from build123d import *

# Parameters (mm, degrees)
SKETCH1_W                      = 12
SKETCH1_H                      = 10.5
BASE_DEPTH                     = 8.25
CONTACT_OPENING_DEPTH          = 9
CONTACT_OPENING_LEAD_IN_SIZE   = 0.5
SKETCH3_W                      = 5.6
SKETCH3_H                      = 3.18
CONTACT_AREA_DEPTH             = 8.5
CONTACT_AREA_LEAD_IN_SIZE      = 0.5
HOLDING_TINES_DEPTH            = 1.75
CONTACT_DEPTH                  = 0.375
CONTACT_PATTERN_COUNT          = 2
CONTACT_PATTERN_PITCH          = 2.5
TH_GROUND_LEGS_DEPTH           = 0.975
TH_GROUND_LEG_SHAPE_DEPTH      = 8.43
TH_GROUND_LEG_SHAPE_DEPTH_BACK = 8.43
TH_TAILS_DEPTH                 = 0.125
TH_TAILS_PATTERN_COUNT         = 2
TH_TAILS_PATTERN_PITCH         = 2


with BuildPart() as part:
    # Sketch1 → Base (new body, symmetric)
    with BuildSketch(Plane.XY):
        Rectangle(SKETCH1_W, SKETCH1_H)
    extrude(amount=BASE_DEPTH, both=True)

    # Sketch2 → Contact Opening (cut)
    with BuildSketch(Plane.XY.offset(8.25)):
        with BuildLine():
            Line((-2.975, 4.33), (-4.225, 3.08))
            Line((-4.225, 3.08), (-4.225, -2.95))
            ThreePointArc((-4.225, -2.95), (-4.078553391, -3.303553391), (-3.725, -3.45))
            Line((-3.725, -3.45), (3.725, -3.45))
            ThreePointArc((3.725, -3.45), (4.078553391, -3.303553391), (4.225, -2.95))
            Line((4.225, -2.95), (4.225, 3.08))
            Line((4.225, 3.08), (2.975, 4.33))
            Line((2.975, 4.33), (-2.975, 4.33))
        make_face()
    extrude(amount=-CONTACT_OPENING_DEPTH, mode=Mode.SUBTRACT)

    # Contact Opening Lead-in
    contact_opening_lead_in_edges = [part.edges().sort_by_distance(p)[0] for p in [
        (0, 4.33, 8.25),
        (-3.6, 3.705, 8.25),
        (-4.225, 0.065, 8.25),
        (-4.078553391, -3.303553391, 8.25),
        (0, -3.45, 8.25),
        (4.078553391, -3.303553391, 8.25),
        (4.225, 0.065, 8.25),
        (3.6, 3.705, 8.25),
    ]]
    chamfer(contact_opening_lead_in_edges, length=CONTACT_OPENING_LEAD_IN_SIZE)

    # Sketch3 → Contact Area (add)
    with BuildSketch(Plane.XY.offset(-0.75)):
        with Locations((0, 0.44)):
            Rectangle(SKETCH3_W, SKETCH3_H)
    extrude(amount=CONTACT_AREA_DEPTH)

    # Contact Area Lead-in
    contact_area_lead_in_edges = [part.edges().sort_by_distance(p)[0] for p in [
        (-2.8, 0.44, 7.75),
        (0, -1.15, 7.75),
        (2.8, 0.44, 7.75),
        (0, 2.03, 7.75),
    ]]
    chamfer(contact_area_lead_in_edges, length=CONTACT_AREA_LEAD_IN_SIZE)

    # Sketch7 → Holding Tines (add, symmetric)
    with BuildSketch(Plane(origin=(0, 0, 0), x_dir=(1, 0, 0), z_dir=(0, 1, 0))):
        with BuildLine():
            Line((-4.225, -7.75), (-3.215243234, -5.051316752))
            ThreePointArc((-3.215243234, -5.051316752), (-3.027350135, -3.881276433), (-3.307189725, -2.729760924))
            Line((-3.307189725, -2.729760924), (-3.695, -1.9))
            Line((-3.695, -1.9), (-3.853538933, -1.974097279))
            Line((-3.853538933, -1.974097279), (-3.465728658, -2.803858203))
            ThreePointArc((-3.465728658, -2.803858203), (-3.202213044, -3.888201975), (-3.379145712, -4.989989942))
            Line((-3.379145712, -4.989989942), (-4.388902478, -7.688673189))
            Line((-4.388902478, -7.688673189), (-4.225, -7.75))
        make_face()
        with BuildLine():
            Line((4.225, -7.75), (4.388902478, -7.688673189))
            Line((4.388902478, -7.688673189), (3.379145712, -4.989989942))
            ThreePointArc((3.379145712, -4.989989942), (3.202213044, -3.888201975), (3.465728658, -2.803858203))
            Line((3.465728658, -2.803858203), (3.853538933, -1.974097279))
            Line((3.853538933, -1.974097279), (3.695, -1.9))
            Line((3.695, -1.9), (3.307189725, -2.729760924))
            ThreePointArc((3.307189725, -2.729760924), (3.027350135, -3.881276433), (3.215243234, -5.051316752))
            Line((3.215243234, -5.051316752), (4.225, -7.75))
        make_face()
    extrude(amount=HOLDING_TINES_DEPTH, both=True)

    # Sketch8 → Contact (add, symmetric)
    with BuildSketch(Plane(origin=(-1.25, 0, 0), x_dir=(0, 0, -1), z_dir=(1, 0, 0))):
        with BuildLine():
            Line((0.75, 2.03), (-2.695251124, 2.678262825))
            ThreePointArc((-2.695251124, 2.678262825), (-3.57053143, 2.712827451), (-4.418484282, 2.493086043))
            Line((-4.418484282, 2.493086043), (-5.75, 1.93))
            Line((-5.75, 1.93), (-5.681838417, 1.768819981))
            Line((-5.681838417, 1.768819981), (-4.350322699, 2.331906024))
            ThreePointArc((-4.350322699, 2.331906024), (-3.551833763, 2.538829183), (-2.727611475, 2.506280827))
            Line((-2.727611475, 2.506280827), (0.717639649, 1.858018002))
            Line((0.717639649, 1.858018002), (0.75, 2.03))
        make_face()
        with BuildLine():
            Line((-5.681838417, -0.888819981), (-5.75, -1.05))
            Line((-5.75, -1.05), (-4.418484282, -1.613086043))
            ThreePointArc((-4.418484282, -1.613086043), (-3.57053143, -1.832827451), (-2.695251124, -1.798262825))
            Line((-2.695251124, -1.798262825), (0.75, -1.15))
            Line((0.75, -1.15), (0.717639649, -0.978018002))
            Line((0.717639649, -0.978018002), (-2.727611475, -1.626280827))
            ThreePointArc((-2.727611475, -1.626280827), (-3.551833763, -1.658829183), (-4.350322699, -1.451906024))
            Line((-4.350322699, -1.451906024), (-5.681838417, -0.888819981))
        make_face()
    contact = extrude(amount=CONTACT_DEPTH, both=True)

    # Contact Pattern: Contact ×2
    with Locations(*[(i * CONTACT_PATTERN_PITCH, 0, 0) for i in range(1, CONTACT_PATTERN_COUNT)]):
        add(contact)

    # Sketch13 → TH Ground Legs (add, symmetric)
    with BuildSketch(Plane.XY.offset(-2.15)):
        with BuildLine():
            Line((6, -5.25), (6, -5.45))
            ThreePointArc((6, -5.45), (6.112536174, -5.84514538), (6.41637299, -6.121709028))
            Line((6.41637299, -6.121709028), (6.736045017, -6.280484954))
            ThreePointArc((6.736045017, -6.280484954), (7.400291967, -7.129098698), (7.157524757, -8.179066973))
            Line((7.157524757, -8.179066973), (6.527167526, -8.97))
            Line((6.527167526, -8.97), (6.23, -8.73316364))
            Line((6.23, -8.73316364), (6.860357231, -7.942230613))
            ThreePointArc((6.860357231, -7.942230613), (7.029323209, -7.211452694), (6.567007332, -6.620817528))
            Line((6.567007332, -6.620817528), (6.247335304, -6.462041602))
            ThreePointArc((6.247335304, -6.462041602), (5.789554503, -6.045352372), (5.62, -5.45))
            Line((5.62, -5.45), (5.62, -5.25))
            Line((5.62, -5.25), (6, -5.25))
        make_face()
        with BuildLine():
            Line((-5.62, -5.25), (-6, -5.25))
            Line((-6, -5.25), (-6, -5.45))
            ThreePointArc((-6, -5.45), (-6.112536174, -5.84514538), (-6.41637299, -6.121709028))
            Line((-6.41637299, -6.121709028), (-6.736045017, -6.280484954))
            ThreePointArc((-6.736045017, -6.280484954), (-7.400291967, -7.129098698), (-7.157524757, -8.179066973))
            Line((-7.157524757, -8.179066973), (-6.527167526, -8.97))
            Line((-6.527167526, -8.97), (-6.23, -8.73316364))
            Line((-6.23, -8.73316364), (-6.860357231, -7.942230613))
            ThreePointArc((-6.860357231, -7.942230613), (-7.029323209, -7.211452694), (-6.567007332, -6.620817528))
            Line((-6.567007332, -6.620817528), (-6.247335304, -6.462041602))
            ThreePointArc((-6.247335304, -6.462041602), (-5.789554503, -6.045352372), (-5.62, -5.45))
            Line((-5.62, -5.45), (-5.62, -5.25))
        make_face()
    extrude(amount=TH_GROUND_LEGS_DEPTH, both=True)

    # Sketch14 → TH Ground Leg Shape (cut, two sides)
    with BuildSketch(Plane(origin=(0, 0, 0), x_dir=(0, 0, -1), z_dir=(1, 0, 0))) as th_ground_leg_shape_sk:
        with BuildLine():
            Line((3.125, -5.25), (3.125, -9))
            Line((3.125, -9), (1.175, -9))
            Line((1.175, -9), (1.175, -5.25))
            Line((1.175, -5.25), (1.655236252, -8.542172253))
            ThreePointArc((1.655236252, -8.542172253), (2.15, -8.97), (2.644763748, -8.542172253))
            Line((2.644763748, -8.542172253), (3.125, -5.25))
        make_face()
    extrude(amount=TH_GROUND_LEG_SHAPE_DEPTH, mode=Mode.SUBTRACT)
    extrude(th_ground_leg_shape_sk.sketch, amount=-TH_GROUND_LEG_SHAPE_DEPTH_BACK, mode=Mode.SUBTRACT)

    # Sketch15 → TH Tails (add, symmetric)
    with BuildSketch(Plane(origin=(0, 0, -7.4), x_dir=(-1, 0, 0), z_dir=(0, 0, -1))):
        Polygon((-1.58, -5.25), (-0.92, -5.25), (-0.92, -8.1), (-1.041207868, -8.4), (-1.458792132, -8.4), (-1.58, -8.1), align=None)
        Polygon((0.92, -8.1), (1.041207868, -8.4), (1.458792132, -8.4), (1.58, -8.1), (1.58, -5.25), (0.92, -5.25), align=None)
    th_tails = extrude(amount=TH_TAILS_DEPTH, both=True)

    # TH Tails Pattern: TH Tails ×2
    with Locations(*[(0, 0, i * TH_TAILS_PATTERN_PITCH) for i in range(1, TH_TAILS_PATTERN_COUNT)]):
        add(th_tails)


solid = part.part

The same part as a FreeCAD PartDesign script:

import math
import FreeCAD as App
import Part
import Sketcher

V = App.Vector
Q = App.Units.Quantity


def edges_at(feature, points):
    """Names of the edges that pass closest to the given points."""
    edges = feature.Shape.Edges
    near = lambda p: min(range(len(edges)), key=lambda i: edges[i].distToShape(Part.Vertex(*p))[0])
    return sorted({f"Edge{near(p) + 1}" for p in points})


def add_polygon(sketch, points):
    """Adds a closed chain of lines whose ends are joined by coincident constraints."""
    first, n = sketch.GeometryCount, len(points)
    for a, b in zip(points, points[1:] + points[:1]):
        sketch.addGeometry(Part.LineSegment(App.Vector(*a, 0), App.Vector(*b, 0)), False)
    for i in range(n):
        sketch.addConstraint(Sketcher.Constraint("Coincident", first + i, 2, first + (i + 1) % n, 1))

doc = App.newDocument("Part")
body = doc.addObject("PartDesign::Body", "Body")

# Sketch on XY plane
sketch1 = body.newObject("Sketcher::SketchObject", "Sketch")
sketch1.AttachmentSupport = (doc.getObject("XY_Plane"), [""])
sketch1.MapMode = "FlatFace"
add_polygon(sketch1, [(-6, 5.25), (-6, -5.25), (6, -5.25), (6, 5.25)])  # lines 0-3
sketch1.addConstraint([
    Sketcher.Constraint("Vertical", 0),
    Sketcher.Constraint("Horizontal", 1),
    Sketcher.Constraint("Vertical", 2),
    Sketcher.Constraint("Horizontal", 3),
    Sketcher.Constraint("Symmetric", 0, 2, 2, 2, -1, 1),
    Sketcher.Constraint("DistanceX", 1, 1, 1, 2, 12.0),
    Sketcher.Constraint("DistanceY", 0, 2, 0, 1, 10.5),
])
pad1 = body.newObject("PartDesign::Pad", "Pad")
pad1.Profile = sketch1
pad1.Length = 16.5
pad1.Midplane = True

# Sketch on XY plane
sketch2 = body.newObject("Sketcher::SketchObject", "Sketch001")
sketch2.AttachmentSupport = (doc.getObject("XY_Plane"), [""])
sketch2.MapMode = "FlatFace"
sketch2.AttachmentOffset = App.Placement(V(0, 0, 8.25), App.Rotation())
sketch2.addGeometry([
    Part.LineSegment(V(-2.975, 4.33, 0), V(-4.225, 3.08, 0)),  # 0
    Part.LineSegment(V(-4.225, 3.08, 0), V(-4.225, -2.95, 0)),  # 1
    Part.ArcOfCircle(Part.Circle(V(-3.725, -2.95, 0), V(0, 0, 1), 0.5), math.radians(180), math.radians(270)),  # 2
    Part.LineSegment(V(-3.725, -3.45, 0), V(3.725, -3.45, 0)),  # 3
    Part.ArcOfCircle(Part.Circle(V(3.725, -2.95, 0), V(0, 0, 1), 0.5), math.radians(-90), math.radians(0)),  # 4
    Part.LineSegment(V(4.225, -2.95, 0), V(4.225, 3.08, 0)),  # 5
    Part.LineSegment(V(4.225, 3.08, 0), V(2.975, 4.33, 0)),  # 6
    Part.LineSegment(V(2.975, 4.33, 0), V(-2.975, 4.33, 0)),  # 7
], False)
sketch2.addConstraint([
    Sketcher.Constraint("Coincident", 0, 2, 1, 1),
    Sketcher.Constraint("Tangent", 1, 2, 2, 1),
    Sketcher.Constraint("Tangent", 2, 2, 3, 1),
    Sketcher.Constraint("Tangent", 3, 2, 4, 1),
    Sketcher.Constraint("Tangent", 4, 2, 5, 1),
    Sketcher.Constraint("Coincident", 5, 2, 6, 1),
    Sketcher.Constraint("Coincident", 6, 2, 7, 1),
    Sketcher.Constraint("Coincident", 7, 2, 0, 1),
    Sketcher.Constraint("Vertical", 1),
    Sketcher.Constraint("Horizontal", 3),
    Sketcher.Constraint("Vertical", 5),
    Sketcher.Constraint("Horizontal", 7),
    Sketcher.Constraint("Equal", 2, 4),
    Sketcher.Constraint("Symmetric", 0, 2, 5, 2, -2),
    Sketcher.Constraint("Perpendicular", 0, 6),
    Sketcher.Constraint("Equal", 0, 6),
    Sketcher.Constraint("Radius", 2, 0.5),
    Sketcher.Constraint("DistanceX", 3, 1, 3, 2, 7.45),
    Sketcher.Constraint("DistanceX", 7, 2, 7, 1, 5.95),
    Sketcher.Constraint("DistanceY", 1, 2, 1, 1, 6.03),
    Sketcher.Constraint("DistanceY", 2, 3, -1, 1, 2.95),
])
pocket1 = body.newObject("PartDesign::Pocket", "Pocket")
pocket1.Profile = sketch2
pocket1.Length = 9
doc.recompute()

chamfer = body.newObject("PartDesign::Chamfer", "Chamfer")
chamfer.Base = (pocket1, edges_at(pocket1, [
    (0, 4.33, 8.25),
    (-3.6, 3.705, 8.25),
    (-4.225, 0.065, 8.25),
    (-4.079, -3.304, 8.25),
    (0, -3.45, 8.25),
    (4.079, -3.304, 8.25),
    (4.225, 0.065, 8.25),
    (3.6, 3.705, 8.25),
]))
chamfer.Size = 0.5

# Sketch on XY plane
sketch3 = body.newObject("Sketcher::SketchObject", "Sketch002")
sketch3.AttachmentSupport = (doc.getObject("XY_Plane"), [""])
sketch3.MapMode = "FlatFace"
sketch3.AttachmentOffset = App.Placement(V(0, 0, -0.75), App.Rotation())
add_polygon(sketch3, [(-2.8, 2.03), (-2.8, -1.15), (2.8, -1.15), (2.8, 2.03)])  # lines 0-3
sketch3.addConstraint([
    Sketcher.Constraint("Vertical", 0),
    Sketcher.Constraint("Horizontal", 1),
    Sketcher.Constraint("Vertical", 2),
    Sketcher.Constraint("Horizontal", 3),
    Sketcher.Constraint("DistanceX", 1, 1, 1, 2, 5.6),
    Sketcher.Constraint("DistanceY", 0, 2, 0, 1, 3.18),
    Sketcher.Constraint("DistanceX", 0, 2, -1, 1, 2.8),
    Sketcher.Constraint("DistanceY", 0, 2, -1, 1, 1.15),
])
pad2 = body.newObject("PartDesign::Pad", "Pad001")
pad2.Profile = sketch3
pad2.Length = 8.5
doc.recompute()

chamfer2 = body.newObject("PartDesign::Chamfer", "Chamfer001")
chamfer2.Base = (pad2, edges_at(pad2, [
    (-2.8, 0.44, 7.75),
    (0, -1.15, 7.75),
    (2.8, 0.44, 7.75),
    (0, 2.03, 7.75),
]))
chamfer2.Size = 0.5

# Sketch on XZ plane
sketch4 = body.newObject("Sketcher::SketchObject", "Sketch003")
sketch4.AttachmentSupport = (doc.getObject("XZ_Plane"), [""])
sketch4.MapMode = "FlatFace"
sketch4.addGeometry([
    Part.LineSegment(V(-4.225, 7.75, 0), V(-3.215243, 5.051317, 0)),  # 0
    Part.ArcOfCircle(Part.Circle(V(-6.025, 4, 0), V(0, 0, 1), 3), math.radians(-25.050254), math.radians(20.514164)),  # 1
    Part.LineSegment(V(-3.30719, 2.729761, 0), V(-3.695, 1.9, 0)),  # 2
    Part.LineSegment(V(-3.695, 1.9, 0), V(-3.853539, 1.974097, 0)),  # 3
    Part.LineSegment(V(-3.853539, 1.974097, 0), V(-3.465729, 2.803858, 0)),  # 4
    Part.ArcOfCircle(Part.Circle(V(-6.025, 4, 0), V(0, 0, 1), 2.825), math.radians(-25.050254), math.radians(20.514164)),  # 5
    Part.LineSegment(V(-3.379146, 4.98999, 0), V(-4.388902, 7.688673, 0)),  # 6
    Part.LineSegment(V(-4.388902, 7.688673, 0), V(-4.225, 7.75, 0)),  # 7
    Part.LineSegment(V(4.225, 7.75, 0), V(4.388902, 7.688673, 0)),  # 8
    Part.LineSegment(V(4.388902, 7.688673, 0), V(3.379146, 4.98999, 0)),  # 9
    Part.ArcOfCircle(Part.Circle(V(6.025, 4, 0), V(0, 0, 1), 2.825), math.radians(159.485836), math.radians(205.050254)),  # 10
    Part.LineSegment(V(3.465729, 2.803858, 0), V(3.853539, 1.974097, 0)),  # 11
    Part.LineSegment(V(3.853539, 1.974097, 0), V(3.695, 1.9, 0)),  # 12
    Part.LineSegment(V(3.695, 1.9, 0), V(3.30719, 2.729761, 0)),  # 13
    Part.ArcOfCircle(Part.Circle(V(6.025, 4, 0), V(0, 0, 1), 3), math.radians(159.485836), math.radians(205.050254)),  # 14
    Part.LineSegment(V(3.215243, 5.051317, 0), V(4.225, 7.75, 0)),  # 15
], False)
sketch4.addConstraint([
    Sketcher.Constraint("Tangent", 0, 2, 1, 2),
    Sketcher.Constraint("Tangent", 1, 1, 2, 1),
    Sketcher.Constraint("Coincident", 2, 2, 3, 1),
    Sketcher.Constraint("Coincident", 3, 2, 4, 1),
    Sketcher.Constraint("Tangent", 4, 2, 5, 1),
    Sketcher.Constraint("Tangent", 5, 2, 6, 1),
    Sketcher.Constraint("Coincident", 6, 2, 7, 1),
    Sketcher.Constraint("Coincident", 7, 2, 0, 1),
    Sketcher.Constraint("Coincident", 8, 2, 9, 1),
    Sketcher.Constraint("Tangent", 9, 2, 10, 1),
    Sketcher.Constraint("Tangent", 10, 2, 11, 1),
    Sketcher.Constraint("Coincident", 11, 2, 12, 1),
    Sketcher.Constraint("Coincident", 12, 2, 13, 1),
    Sketcher.Constraint("Tangent", 13, 2, 14, 2),
    Sketcher.Constraint("Tangent", 14, 1, 15, 1),
    Sketcher.Constraint("Coincident", 15, 2, 8, 1),
    Sketcher.Constraint("Coincident", 5, 3, 1, 3),
    Sketcher.Constraint("Coincident", 14, 3, 10, 3),
    Sketcher.Constraint("Equal", 5, 10),
    Sketcher.Constraint("Equal", 1, 14),
    Sketcher.Constraint("Symmetric", 1, 3, 10, 3, -2),
    Sketcher.Constraint("Symmetric", 6, 2, 8, 2, -2),
    Sketcher.Constraint("Symmetric", 3, 2, 11, 2, -2),
    Sketcher.Constraint("Symmetric", 2, 2, 12, 2, -2),
    Sketcher.Constraint("Symmetric", 7, 2, 15, 2, -2),
    Sketcher.Constraint("Perpendicular", 2, 3),
    Sketcher.Constraint("Perpendicular", 3, 4),
    Sketcher.Constraint("Parallel", 0, 6),
    Sketcher.Constraint("Perpendicular", 6, 7),
    Sketcher.Constraint("Radius", 1, 3.0),
    Sketcher.Constraint("DistanceY", -1, 1, 1, 3, 4.0),
    Sketcher.Constraint("Radius", 5, 2.825),
    Sketcher.Constraint("DistanceY", -1, 1, 2, 2, 1.9),
    Sketcher.Constraint("DistanceX", 1, 3, 7, 2, 1.8),
    Sketcher.Constraint("DistanceY", -1, 1, 7, 2, 7.75),
    Sketcher.Constraint("DistanceX", 1, 3, 10, 3, 12.05),
    Sketcher.Constraint("DistanceX", 1, 3, 2, 2, 2.33),
])
pad3 = body.newObject("PartDesign::Pad", "Pad002")
pad3.Profile = sketch4
pad3.Length = 3.5
pad3.Midplane = True

# Sketch on YZ plane
sketch5 = body.newObject("Sketcher::SketchObject", "Sketch004")
sketch5.AttachmentSupport = (doc.getObject("YZ_Plane"), [""])
sketch5.MapMode = "FlatFace"
sketch5.AttachmentOffset = App.Placement(V(0, 0, -1.25), App.Rotation())
sketch5.addGeometry([
    Part.LineSegment(V(2.03, -0.75, 0), V(2.678263, 2.695251, 0)),  # 0
    Part.ArcOfCircle(Part.Circle(V(-0.27, 3.25, 0), V(0, 0, 1), 3), math.radians(-10.656252), math.radians(22.923066)),  # 1
    Part.LineSegment(V(2.493086, 4.418484, 0), V(1.93, 5.75, 0)),  # 2
    Part.LineSegment(V(1.93, 5.75, 0), V(1.76882, 5.681838, 0)),  # 3
    Part.LineSegment(V(1.76882, 5.681838, 0), V(2.331906, 4.350323, 0)),  # 4
    Part.ArcOfCircle(Part.Circle(V(-0.27, 3.25, 0), V(0, 0, 1), 2.825), math.radians(-10.656252), math.radians(22.923066)),  # 5
    Part.LineSegment(V(2.506281, 2.727611, 0), V(1.858018, -0.71764, 0)),  # 6
    Part.LineSegment(V(1.858018, -0.71764, 0), V(2.03, -0.75, 0)),  # 7
    Part.LineSegment(V(-0.88882, 5.681838, 0), V(-1.05, 5.75, 0)),  # 8
    Part.LineSegment(V(-1.05, 5.75, 0), V(-1.613086, 4.418484, 0)),  # 9
    Part.ArcOfCircle(Part.Circle(V(1.15, 3.25, 0), V(0, 0, 1), 3), math.radians(157.076934), math.radians(190.656252)),  # 10
    Part.LineSegment(V(-1.798263, 2.695251, 0), V(-1.15, -0.75, 0)),  # 11
    Part.LineSegment(V(-1.15, -0.75, 0), V(-0.978018, -0.71764, 0)),  # 12
    Part.LineSegment(V(-0.978018, -0.71764, 0), V(-1.626281, 2.727611, 0)),  # 13
    Part.ArcOfCircle(Part.Circle(V(1.15, 3.25, 0), V(0, 0, 1), 2.825), math.radians(157.076934), math.radians(190.656252)),  # 14
    Part.LineSegment(V(-1.451906, 4.350323, 0), V(-0.88882, 5.681838, 0)),  # 15
], False)
sketch5.addConstraint([
    Sketcher.Constraint("Tangent", 0, 2, 1, 1),
    Sketcher.Constraint("Tangent", 1, 2, 2, 1),
    Sketcher.Constraint("Coincident", 2, 2, 3, 1),
    Sketcher.Constraint("Coincident", 3, 2, 4, 1),
    Sketcher.Constraint("Tangent", 4, 2, 5, 2),
    Sketcher.Constraint("Tangent", 5, 1, 6, 1),
    Sketcher.Constraint("Coincident", 6, 2, 7, 1),
    Sketcher.Constraint("Coincident", 7, 2, 0, 1),
    Sketcher.Constraint("Coincident", 8, 2, 9, 1),
    Sketcher.Constraint("Tangent", 9, 2, 10, 1),
    Sketcher.Constraint("Tangent", 10, 2, 11, 1),
    Sketcher.Constraint("Coincident", 11, 2, 12, 1),
    Sketcher.Constraint("Coincident", 12, 2, 13, 1),
    Sketcher.Constraint("Tangent", 13, 2, 14, 2),
    Sketcher.Constraint("Tangent", 14, 1, 15, 1),
    Sketcher.Constraint("Coincident", 15, 2, 8, 1),
    Sketcher.Constraint("Coincident", 5, 3, 1, 3),
    Sketcher.Constraint("Coincident", 14, 3, 10, 3),
    Sketcher.Constraint("Equal", 1, 10),
    Sketcher.Constraint("Equal", 5, 14),
    Sketcher.Constraint("Perpendicular", 2, 3),
    Sketcher.Constraint("Perpendicular", 3, 4),
    Sketcher.Constraint("Parallel", 0, 6),
    Sketcher.Constraint("Perpendicular", 6, 7),
    Sketcher.Constraint("Perpendicular", 8, 9),
    Sketcher.Constraint("Perpendicular", 11, 12),
    Sketcher.Constraint("Perpendicular", 12, 13),
    Sketcher.Constraint("Parallel", 9, 15),
    Sketcher.Constraint("Horizontal", 5, 3, 10, 3),
    Sketcher.Constraint("Horizontal", 2, 2, 8, 2),
    Sketcher.Constraint("Horizontal", 1, 2, 9, 2),
    Sketcher.Constraint("Horizontal", 0, 2, 10, 2),
    Sketcher.Constraint("Horizontal", 7, 2, 11, 2),
    Sketcher.Constraint("Radius", 1, 3.0),
    Sketcher.Constraint("Radius", 5, 2.825),
    Sketcher.Constraint("DistanceY", 7, 2, 14, 3, 4.0),
    Sketcher.Constraint("DistanceY", 14, 3, 2, 2, 2.5),
    Sketcher.Constraint("DistanceX", 1, 3, 2, 2, 2.2),
    Sketcher.Constraint("DistanceX", 1, 3, -1, 1, 0.27),
    Sketcher.Constraint("DistanceY", -1, 1, 1, 3, 3.25),
    Sketcher.Constraint("DistanceX", -1, 1, 10, 3, 1.15),
    Sketcher.Constraint("DistanceX", -1, 1, 7, 2, 2.03),
])
pad4 = body.newObject("PartDesign::Pad", "Pad003")
pad4.Profile = sketch5
pad4.Length = 0.75
pad4.Midplane = True
doc.recompute()

linearpattern = body.newObject("PartDesign::LinearPattern", "LinearPattern")
linearpattern.Originals = [pad4]
linearpattern.Direction = (doc.getObject("X_Axis"), [""])
linearpattern.Mode = "offset"
linearpattern.Offset = 2.5
linearpattern.Occurrences = 2
body.Tip = linearpattern

# Sketch on XY plane
sketch6 = body.newObject("Sketcher::SketchObject", "Sketch005")
sketch6.AttachmentSupport = (doc.getObject("XY_Plane"), [""])
sketch6.MapMode = "FlatFace"
sketch6.AttachmentOffset = App.Placement(V(0, 0, -2.15), App.Rotation())
sketch6.addGeometry([
    Part.LineSegment(V(6, -5.45, 0), V(6, -5.25, 0)),  # 0
    Part.LineSegment(V(6, -5.25, 0), V(5.62, -5.25, 0)),  # 1
    Part.LineSegment(V(5.62, -5.25, 0), V(5.62, -5.45, 0)),  # 2
    Part.ArcOfCircle(Part.Circle(V(6.75, -5.45, 0), V(0, 0, 1), 1.13), math.radians(-180), math.radians(-116.412848)),  # 3
    Part.LineSegment(V(6.247335, -6.462042, 0), V(6.567007, -6.620818, 0)),  # 4
    Part.ArcOfCircle(Part.Circle(V(6.18, -7.4, 0), V(0, 0, 1), 0.87), math.radians(-38.554119), math.radians(63.587153)),  # 5
    Part.LineSegment(V(6.860357, -7.942231, 0), V(6.23, -8.733164, 0)),  # 6
    Part.LineSegment(V(6.23, -8.733164, 0), V(6.527168, -8.97, 0)),  # 7
    Part.LineSegment(V(6.527168, -8.97, 0), V(7.157525, -8.179067, 0)),  # 8
    Part.ArcOfCircle(Part.Circle(V(6.18, -7.4, 0), V(0, 0, 1), 1.25), math.radians(-38.554119), math.radians(63.587153)),  # 9
    Part.LineSegment(V(6.736045, -6.280485, 0), V(6.416373, -6.121709, 0)),  # 10
    Part.ArcOfCircle(Part.Circle(V(6.75, -5.45, 0), V(0, 0, 1), 0.75), math.radians(180), math.radians(243.587153)),  # 11
    Part.LineSegment(V(-5.62, -5.25, 0), V(-6, -5.25, 0)),  # 12
    Part.LineSegment(V(-6, -5.25, 0), V(-6, -5.45, 0)),  # 13
    Part.ArcOfCircle(Part.Circle(V(-6.75, -5.45, 0), V(0, 0, 1), 0.75), math.radians(-63.587153), math.radians(0)),  # 14
    Part.LineSegment(V(-6.416373, -6.121709, 0), V(-6.736045, -6.280485, 0)),  # 15
    Part.ArcOfCircle(Part.Circle(V(-6.18, -7.4, 0), V(0, 0, 1), 1.25), math.radians(116.412847), math.radians(218.554119)),  # 16
    Part.LineSegment(V(-7.157525, -8.179067, 0), V(-6.527168, -8.97, 0)),  # 17
    Part.LineSegment(V(-6.527168, -8.97, 0), V(-6.23, -8.733164, 0)),  # 18
    Part.LineSegment(V(-6.23, -8.733164, 0), V(-6.860357, -7.942231, 0)),  # 19
    Part.ArcOfCircle(Part.Circle(V(-6.18, -7.4, 0), V(0, 0, 1), 0.87), math.radians(116.412847), math.radians(218.554119)),  # 20
    Part.LineSegment(V(-6.567007, -6.620818, 0), V(-6.247335, -6.462042, 0)),  # 21
    Part.ArcOfCircle(Part.Circle(V(-6.75, -5.45, 0), V(0, 0, 1), 1.13), math.radians(-63.587152), math.radians(0)),  # 22
    Part.LineSegment(V(-5.62, -5.45, 0), V(-5.62, -5.25, 0)),  # 23
], False)
sketch6.addConstraint([
    Sketcher.Constraint("Coincident", 0, 2, 1, 1),
    Sketcher.Constraint("Coincident", 1, 2, 2, 1),
    Sketcher.Constraint("Tangent", 2, 2, 3, 1),
    Sketcher.Constraint("Tangent", 3, 2, 4, 1),
    Sketcher.Constraint("Tangent", 4, 2, 5, 2),
    Sketcher.Constraint("Tangent", 5, 1, 6, 1),
    Sketcher.Constraint("Coincident", 6, 2, 7, 1),
    Sketcher.Constraint("Coincident", 7, 2, 8, 1),
    Sketcher.Constraint("Tangent", 8, 2, 9, 1),
    Sketcher.Constraint("Tangent", 9, 2, 10, 1),
    Sketcher.Constraint("Tangent", 10, 2, 11, 2),
    Sketcher.Constraint("Tangent", 11, 1, 0, 1),
    Sketcher.Constraint("Coincident", 12, 2, 13, 1),
    Sketcher.Constraint("Tangent", 13, 2, 14, 2),
    Sketcher.Constraint("Tangent", 14, 1, 15, 1),
    Sketcher.Constraint("Tangent", 15, 2, 16, 1),
    Sketcher.Constraint("Tangent", 16, 2, 17, 1),
    Sketcher.Constraint("Coincident", 17, 2, 18, 1),
    Sketcher.Constraint("Coincident", 18, 2, 19, 1),
    Sketcher.Constraint("Tangent", 19, 2, 20, 2),
    Sketcher.Constraint("Tangent", 20, 1, 21, 1),
    Sketcher.Constraint("Tangent", 21, 2, 22, 1),
    Sketcher.Constraint("Tangent", 22, 2, 23, 1),
    Sketcher.Constraint("Coincident", 23, 2, 12, 1),
    Sketcher.Constraint("Vertical", 0),
    Sketcher.Constraint("Horizontal", 1),
    Sketcher.Constraint("Vertical", 2),
    Sketcher.Constraint("Horizontal", 12),
    Sketcher.Constraint("Vertical", 13),
    Sketcher.Constraint("Vertical", 23),
    Sketcher.Constraint("Coincident", 9, 3, 5, 3),
    Sketcher.Constraint("Coincident", 11, 3, 3, 3),
    Sketcher.Constraint("Coincident", 20, 3, 16, 3),
    Sketcher.Constraint("Coincident", 22, 3, 14, 3),
    Sketcher.Constraint("Equal", 11, 14),
    Sketcher.Constraint("Equal", 9, 16),
    Sketcher.Constraint("Equal", 5, 20),
    Sketcher.Constraint("Equal", 3, 22),
    Sketcher.Constraint("Symmetric", 3, 3, 14, 3, -2),
    Sketcher.Constraint("Symmetric", 5, 3, 16, 3, -2),
    Sketcher.Constraint("Symmetric", 7, 2, 17, 2, -2),
    Sketcher.Constraint("Symmetric", 6, 2, 18, 2, -2),
    Sketcher.Constraint("Perpendicular", 6, 7),
    Sketcher.Constraint("Perpendicular", 7, 8),
    Sketcher.Constraint("Parallel", 4, 10),
    Sketcher.Constraint("Horizontal", 1, 2, 12, 2),
    Sketcher.Constraint("Radius", 3, 1.13),
    Sketcher.Constraint("Radius", 5, 0.87),
    Sketcher.Constraint("Radius", 9, 1.25),
    Sketcher.Constraint("DistanceY", 0, 1, 0, 2, 0.2),
    Sketcher.Constraint("DistanceX", -1, 1, 0, 2, 6.0),
    Sketcher.Constraint("DistanceY", 5, 3, -1, 1, 7.4),
    Sketcher.Constraint("DistanceY", 3, 3, -1, 1, 5.45),
    Sketcher.Constraint("DistanceX", -1, 1, 5, 3, 6.18),
    Sketcher.Constraint("DistanceX", -1, 1, 6, 2, 6.23),
    Sketcher.Constraint("DistanceY", 7, 2, -1, 1, 8.97),
])
pad5 = body.newObject("PartDesign::Pad", "Pad004")
pad5.Profile = sketch6
pad5.Length = 1.95
pad5.Midplane = True

# Sketch on YZ plane
sketch7 = body.newObject("Sketcher::SketchObject", "Sketch006")
sketch7.AttachmentSupport = (doc.getObject("YZ_Plane"), [""])
sketch7.MapMode = "FlatFace"
sketch7.addGeometry([
    Part.LineSegment(V(-9, -3.125, 0), V(-5.25, -3.125, 0)),  # 0
    Part.LineSegment(V(-5.25, -3.125, 0), V(-8.542172, -2.644764, 0)),  # 1
    Part.ArcOfCircle(Part.Circle(V(-8.47, -2.15, 0), V(0, 0, 1), 0.5), math.radians(98.299323), math.radians(261.700677)),  # 2
    Part.LineSegment(V(-8.542172, -1.655236, 0), V(-5.25, -1.175, 0)),  # 3
    Part.LineSegment(V(-5.25, -1.175, 0), V(-9, -1.175, 0)),  # 4
    Part.LineSegment(V(-9, -1.175, 0), V(-9, -3.125, 0)),  # 5
], False)
sketch7.addConstraint([
    Sketcher.Constraint("Coincident", 0, 2, 1, 1),
    Sketcher.Constraint("Tangent", 1, 2, 2, 2),
    Sketcher.Constraint("Tangent", 2, 1, 3, 1),
    Sketcher.Constraint("Coincident", 3, 2, 4, 1),
    Sketcher.Constraint("Coincident", 4, 2, 5, 1),
    Sketcher.Constraint("Coincident", 5, 2, 0, 1),
    Sketcher.Constraint("Horizontal", 0),
    Sketcher.Constraint("Horizontal", 4),
    Sketcher.Constraint("Vertical", 5),
    Sketcher.Constraint("Vertical", 1, 2, 2, 1),
    Sketcher.Constraint("Vertical", 0, 2, 3, 2),
    Sketcher.Constraint("Radius", 2, 0.5),
    Sketcher.Constraint("DistanceX", 4, 2, -1, 1, 9.0),
    Sketcher.Constraint("DistanceX", 0, 1, 0, 2, 3.75),
    Sketcher.Constraint("DistanceY", 5, 2, 5, 1, 1.95),
    Sketcher.Constraint("DistanceX", 2, 3, -1, 1, 8.47),
    Sketcher.Constraint("DistanceY", 2, 3, -1, 1, 2.15),
])
pocket2 = body.newObject("PartDesign::Pocket", "Pocket001")
pocket2.Profile = sketch7
pocket2.Type = "ThroughAll"
pocket2.Midplane = True

# Sketch on XY plane
sketch8 = body.newObject("Sketcher::SketchObject", "Sketch007")
sketch8.AttachmentSupport = (doc.getObject("XY_Plane"), [""])
sketch8.MapMode = "FlatFace"
sketch8.AttachmentOffset = App.Placement(V(0, 0, -7.4), App.Rotation())
add_polygon(sketch8, [(0.92, -5.25), (1.58, -5.25), (1.58, -8.1), (1.458792, -8.4), (1.041208, -8.4), (0.92, -8.1)])  # lines 0-5
add_polygon(sketch8, [(-0.92, -8.1), (-1.041208, -8.4), (-1.458792, -8.4), (-1.58, -8.1), (-1.58, -5.25), (-0.92, -5.25)])  # lines 6-11
sketch8.addConstraint([
    Sketcher.Constraint("Horizontal", 0),
    Sketcher.Constraint("Vertical", 1),
    Sketcher.Constraint("Horizontal", 3),
    Sketcher.Constraint("Vertical", 5),
    Sketcher.Constraint("Horizontal", 7),
    Sketcher.Constraint("Vertical", 9),
    Sketcher.Constraint("Horizontal", 10),
    Sketcher.Constraint("Vertical", 11),
    Sketcher.Constraint("Symmetric", 3, 2, 6, 2, -2),
    Sketcher.Constraint("Symmetric", 1, 2, 8, 2, -2),
    Sketcher.Constraint("Symmetric", 5, 2, 10, 2, -2),
    Sketcher.Constraint("Parallel", 2, 6),
    Sketcher.Constraint("Parallel", 4, 8),
    Sketcher.Constraint("Horizontal", 1, 2, 4, 2),
    Sketcher.Constraint("Horizontal", 8, 2, 11, 2),
    Sketcher.Constraint("Angle", 2, Q("-112 deg")),
    Sketcher.Constraint("DistanceX", 0, 1, 0, 2, 0.66),
    Sketcher.Constraint("DistanceY", 1, 2, 1, 1, 2.85),
    Sketcher.Constraint("DistanceY", 1, 2, -1, 1, 8.1),
    Sketcher.Constraint("DistanceY", 2, 2, -1, 1, 8.4),
    Sketcher.Constraint("DistanceX", 6, 2, 2, 2, 2.5),
])
pad6 = body.newObject("PartDesign::Pad", "Pad005")
pad6.Profile = sketch8
pad6.Length = 0.25
pad6.Midplane = True
doc.recompute()

linearpattern2 = body.newObject("PartDesign::LinearPattern", "LinearPattern001")
linearpattern2.Originals = [pad6]
linearpattern2.Direction = (doc.getObject("Z_Axis"), [""])
linearpattern2.Mode = "offset"
linearpattern2.Offset = 2
linearpattern2.Occurrences = 2
body.Tip = linearpattern2

doc.recompute()
